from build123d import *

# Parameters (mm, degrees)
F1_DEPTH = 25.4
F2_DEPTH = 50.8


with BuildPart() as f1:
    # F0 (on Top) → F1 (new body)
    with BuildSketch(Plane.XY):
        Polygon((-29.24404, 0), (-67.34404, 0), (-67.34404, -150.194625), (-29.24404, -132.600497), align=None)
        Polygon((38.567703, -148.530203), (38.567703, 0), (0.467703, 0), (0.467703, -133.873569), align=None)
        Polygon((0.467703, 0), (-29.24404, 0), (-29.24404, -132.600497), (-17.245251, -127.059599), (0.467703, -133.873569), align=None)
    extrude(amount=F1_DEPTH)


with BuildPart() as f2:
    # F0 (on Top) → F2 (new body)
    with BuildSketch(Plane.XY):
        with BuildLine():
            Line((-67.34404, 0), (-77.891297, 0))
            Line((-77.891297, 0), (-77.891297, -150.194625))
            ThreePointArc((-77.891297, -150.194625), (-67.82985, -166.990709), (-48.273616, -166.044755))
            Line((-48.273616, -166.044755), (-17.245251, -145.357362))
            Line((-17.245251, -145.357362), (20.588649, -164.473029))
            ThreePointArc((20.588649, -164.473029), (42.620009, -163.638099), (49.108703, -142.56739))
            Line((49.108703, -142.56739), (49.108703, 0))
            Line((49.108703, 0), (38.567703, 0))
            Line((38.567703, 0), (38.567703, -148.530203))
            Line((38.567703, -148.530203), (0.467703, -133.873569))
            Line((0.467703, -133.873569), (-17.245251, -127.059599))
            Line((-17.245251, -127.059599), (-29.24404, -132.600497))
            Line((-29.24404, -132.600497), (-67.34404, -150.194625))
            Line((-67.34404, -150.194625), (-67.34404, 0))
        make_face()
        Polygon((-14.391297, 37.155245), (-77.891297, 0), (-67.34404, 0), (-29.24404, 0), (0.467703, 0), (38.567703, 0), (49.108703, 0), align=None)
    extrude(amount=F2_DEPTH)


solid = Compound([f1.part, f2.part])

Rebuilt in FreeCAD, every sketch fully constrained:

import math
import FreeCAD as App
import Part
import Sketcher
Q = App.Units.Quantity


def add_polygon(sketch, points):
    """Adds a closed chain of lines whose ends are joined by coincident constraints."""
    first, n = sketch.GeometryCount, len(points)
    for a, b in zip(points, points[1:] + points[:1]):
        sketch.addGeometry(Part.LineSegment(App.Vector(*a, 0), App.Vector(*b, 0)), False)
    for i in range(n):
        sketch.addConstraint(Sketcher.Constraint("Coincident", first + i, 2, first + (i + 1) % n, 1))

doc = App.newDocument("Part")
body = doc.addObject("PartDesign::Body", "Body")

# Sketch on XY plane
sketch1 = body.newObject("Sketcher::SketchObject", "Sketch")
sketch1.AttachmentSupport = (doc.getObject("XY_Plane"), [""])
sketch1.MapMode = "FlatFace"
add_polygon(sketch1, [(-67, 0), (-67, -150), (-29, -133), (-17, -127), (0, -134), (39, -149), (39, 0)])  # lines 0-6
sketch1.addConstraint(Sketcher.Constraint("Vertical", 0))
sketch1.addConstraint(Sketcher.Constraint("Vertical", 5))
sketch1.addConstraint(Sketcher.Constraint("Horizontal", 6))
sketch1.addConstraint(Sketcher.Constraint("PointOnObject", 5, 2, -1))
sketch1.addConstraint(Sketcher.Constraint("Parallel", 1, 2))
sketch1.addConstraint(Sketcher.Constraint("Parallel", 3, 4))
sketch1.addConstraint(Sketcher.Constraint("DistanceX", 0, 2, 1, 2, Q("1.5 in")))
sketch1.addConstraint(Sketcher.Constraint("DistanceX", 3, 2, 4, 2, Q("1.5 in")))
sketch1.addConstraint(Sketcher.Constraint("DistanceY", 2, 2, -1, 1, 127.059599))
sketch1.addConstraint(Sketcher.Constraint("Distance", 2, 13.216372))
sketch1.addConstraint(Sketcher.Constraint("Distance", 3, 18.978381))
sketch1.addConstraint(Sketcher.Constraint("DistanceX", 6, 2, 6, 1, 105.911743))
sketch1.addConstraint(Sketcher.Constraint("DistanceY", 0, 2, 0, 1, 150.194625))
sketch1.addConstraint(Sketcher.Constraint("DistanceX", 0, 2, -1, 1, 67.34404))
pad1 = body.newObject("PartDesign::Pad", "Pad")
pad1.Profile = sketch1
pad1.Length = Q("1 in")
body2 = doc.addObject("PartDesign::Body", "Body001")

# Sketch on XY plane
sketch2 = body2.newObject("Sketcher::SketchObject", "Sketch001")
sketch2.AttachmentSupport = (doc.getObject("XY_Plane001"), [""])
sketch2.MapMode = "FlatFace"
sketch2.addGeometry(Part.LineSegment(App.Vector(-78, 0, 0), App.Vector(-78, -150, 0)), False)  # 0
sketch2.addGeometry(Part.ArcOfCircle(Part.Circle(App.Vector(-59, -150, 0), App.Vector(0, 0, 1), 19), math.radians(180), math.radians(304)), False)  # 1
sketch2.addGeometry(Part.LineSegment(App.Vector(-48, -166, 0), App.Vector(-17, -145, 0)), False)  # 2
sketch2.addGeometry(Part.LineSegment(App.Vector(-17, -145, 0), App.Vector(21, -164, 0)), False)  # 3
sketch2.addGeometry(Part.ArcOfCircle(Part.Circle(App.Vector(31, -149, 0), App.Vector(0, 0, 1), 19), math.radians(-123), math.radians(18)), False)  # 4
sketch2.addGeometry(Part.LineSegment(App.Vector(49, -143, 0), App.Vector(49, 0, 0)), False)  # 5
sketch2.addGeometry(Part.LineSegment(App.Vector(49, 0, 0), App.Vector(-14, 37, 0)), False)  # 6
sketch2.addGeometry(Part.LineSegment(App.Vector(-14, 37, 0), App.Vector(-78, 0, 0)), False)  # 7
add_polygon(sketch2, [(39, 0), (39, -149), (0, -134), (-17, -127), (-29, -133), (-67, -150), (-67, 0)])  # lines 8-14
sketch2.addConstraint(Sketcher.Constraint("Tangent", 0, 2, 1, 1))
sketch2.addConstraint(Sketcher.Constraint("Tangent", 1, 2, 2, 1))
sketch2.addConstraint(Sketcher.Constraint("Coincident", 2, 2, 3, 1))
sketch2.addConstraint(Sketcher.Constraint("Coincident", 3, 2, 4, 1))
sketch2.addConstraint(Sketcher.Constraint("Coincident", 4, 2, 5, 1))
sketch2.addConstraint(Sketcher.Constraint("Coincident", 5, 2, 6, 1))
sketch2.addConstraint(Sketcher.Constraint("Coincident", 6, 2, 7, 1))
sketch2.addConstraint(Sketcher.Constraint("Coincident", 7, 2, 0, 1))
sketch2.addConstraint(Sketcher.Constraint("Vertical", 0))
sketch2.addConstraint(Sketcher.Constraint("Vertical", 5))
sketch2.addConstraint(Sketcher.Constraint("Vertical", 8))
sketch2.addConstraint(Sketcher.Constraint("Vertical", 13))
sketch2.addConstraint(Sketcher.Constraint("Horizontal", 14))
sketch2.addConstraint(Sketcher.Constraint("Equal", 1, 4))
sketch2.addConstraint(Sketcher.Constraint("PointOnObject", 5, 2, -1))
sketch2.addConstraint(Sketcher.Constraint("PointOnObject", 7, 2, -1))
sketch2.addConstraint(Sketcher.Constraint("PointOnObject", 13, 2, -1))
sketch2.addConstraint(Sketcher.Constraint("Parallel", 9, 10))
sketch2.addConstraint(Sketcher.Constraint("Parallel", 11, 12))
sketch2.addConstraint(Sketcher.Constraint("Horizontal", 4, 3, 8, 2))
sketch2.addConstraint(Sketcher.Constraint("Horizontal", 0, 2, 12, 2))
sketch2.addConstraint(Sketcher.Constraint("Vertical", 2, 2, 10, 2))
sketch2.addConstraint(Sketcher.Constraint("Equal", 6, 7))
sketch2.addConstraint(Sketcher.Constraint("Radius", 1, Q("0.75 in")))
sketch2.addConstraint(Sketcher.Constraint("DistanceX", 7, 2, 5, 2, Q("5 in")))
sketch2.addConstraint(Sketcher.Constraint("DistanceX", 9, 2, 8, 2, Q("1.5 in")))
sketch2.addConstraint(Sketcher.Constraint("DistanceX", 12, 2, 11, 2, Q("1.5 in")))
sketch2.addConstraint(Sketcher.Constraint("DistanceX", 8, 2, 4, 2, Q("0.415 in")))
sketch2.addConstraint(Sketcher.Constraint("DistanceY", 5, 1, 5, 2, 142.56739))
sketch2.addConstraint(Sketcher.Constraint("DistanceY", 10, 2, -1, 1, 127.059599))
sketch2.addConstraint(Sketcher.Constraint("DistanceX", 2, 2, 3, 2, 37.8339))
sketch2.addConstraint(Sketcher.Constraint("Distance", 2, 37.292461))
sketch2.addConstraint(Sketcher.Constraint("Distance", 10, 18.978381))
sketch2.addConstraint(Sketcher.Constraint("Distance", 11, 13.216372))
sketch2.addConstraint(Sketcher.Constraint("DistanceX", 14, 1, 14, 2, 105.911743))
sketch2.addConstraint(Sketcher.Constraint("DistanceY", 0, 2, 0, 1, 150.194625))
sketch2.addConstraint(Sketcher.Constraint("DistanceX", -1, 1, 4, 3, 31.015959))
sketch2.addConstraint(Sketcher.Constraint("DistanceY", 1, 3, 6, 2, 187.349871))
pad2 = body2.newObject("PartDesign::Pad", "Pad001")
pad2.Profile = sketch2
pad2.Length = Q("2 in")

doc.recompute()
